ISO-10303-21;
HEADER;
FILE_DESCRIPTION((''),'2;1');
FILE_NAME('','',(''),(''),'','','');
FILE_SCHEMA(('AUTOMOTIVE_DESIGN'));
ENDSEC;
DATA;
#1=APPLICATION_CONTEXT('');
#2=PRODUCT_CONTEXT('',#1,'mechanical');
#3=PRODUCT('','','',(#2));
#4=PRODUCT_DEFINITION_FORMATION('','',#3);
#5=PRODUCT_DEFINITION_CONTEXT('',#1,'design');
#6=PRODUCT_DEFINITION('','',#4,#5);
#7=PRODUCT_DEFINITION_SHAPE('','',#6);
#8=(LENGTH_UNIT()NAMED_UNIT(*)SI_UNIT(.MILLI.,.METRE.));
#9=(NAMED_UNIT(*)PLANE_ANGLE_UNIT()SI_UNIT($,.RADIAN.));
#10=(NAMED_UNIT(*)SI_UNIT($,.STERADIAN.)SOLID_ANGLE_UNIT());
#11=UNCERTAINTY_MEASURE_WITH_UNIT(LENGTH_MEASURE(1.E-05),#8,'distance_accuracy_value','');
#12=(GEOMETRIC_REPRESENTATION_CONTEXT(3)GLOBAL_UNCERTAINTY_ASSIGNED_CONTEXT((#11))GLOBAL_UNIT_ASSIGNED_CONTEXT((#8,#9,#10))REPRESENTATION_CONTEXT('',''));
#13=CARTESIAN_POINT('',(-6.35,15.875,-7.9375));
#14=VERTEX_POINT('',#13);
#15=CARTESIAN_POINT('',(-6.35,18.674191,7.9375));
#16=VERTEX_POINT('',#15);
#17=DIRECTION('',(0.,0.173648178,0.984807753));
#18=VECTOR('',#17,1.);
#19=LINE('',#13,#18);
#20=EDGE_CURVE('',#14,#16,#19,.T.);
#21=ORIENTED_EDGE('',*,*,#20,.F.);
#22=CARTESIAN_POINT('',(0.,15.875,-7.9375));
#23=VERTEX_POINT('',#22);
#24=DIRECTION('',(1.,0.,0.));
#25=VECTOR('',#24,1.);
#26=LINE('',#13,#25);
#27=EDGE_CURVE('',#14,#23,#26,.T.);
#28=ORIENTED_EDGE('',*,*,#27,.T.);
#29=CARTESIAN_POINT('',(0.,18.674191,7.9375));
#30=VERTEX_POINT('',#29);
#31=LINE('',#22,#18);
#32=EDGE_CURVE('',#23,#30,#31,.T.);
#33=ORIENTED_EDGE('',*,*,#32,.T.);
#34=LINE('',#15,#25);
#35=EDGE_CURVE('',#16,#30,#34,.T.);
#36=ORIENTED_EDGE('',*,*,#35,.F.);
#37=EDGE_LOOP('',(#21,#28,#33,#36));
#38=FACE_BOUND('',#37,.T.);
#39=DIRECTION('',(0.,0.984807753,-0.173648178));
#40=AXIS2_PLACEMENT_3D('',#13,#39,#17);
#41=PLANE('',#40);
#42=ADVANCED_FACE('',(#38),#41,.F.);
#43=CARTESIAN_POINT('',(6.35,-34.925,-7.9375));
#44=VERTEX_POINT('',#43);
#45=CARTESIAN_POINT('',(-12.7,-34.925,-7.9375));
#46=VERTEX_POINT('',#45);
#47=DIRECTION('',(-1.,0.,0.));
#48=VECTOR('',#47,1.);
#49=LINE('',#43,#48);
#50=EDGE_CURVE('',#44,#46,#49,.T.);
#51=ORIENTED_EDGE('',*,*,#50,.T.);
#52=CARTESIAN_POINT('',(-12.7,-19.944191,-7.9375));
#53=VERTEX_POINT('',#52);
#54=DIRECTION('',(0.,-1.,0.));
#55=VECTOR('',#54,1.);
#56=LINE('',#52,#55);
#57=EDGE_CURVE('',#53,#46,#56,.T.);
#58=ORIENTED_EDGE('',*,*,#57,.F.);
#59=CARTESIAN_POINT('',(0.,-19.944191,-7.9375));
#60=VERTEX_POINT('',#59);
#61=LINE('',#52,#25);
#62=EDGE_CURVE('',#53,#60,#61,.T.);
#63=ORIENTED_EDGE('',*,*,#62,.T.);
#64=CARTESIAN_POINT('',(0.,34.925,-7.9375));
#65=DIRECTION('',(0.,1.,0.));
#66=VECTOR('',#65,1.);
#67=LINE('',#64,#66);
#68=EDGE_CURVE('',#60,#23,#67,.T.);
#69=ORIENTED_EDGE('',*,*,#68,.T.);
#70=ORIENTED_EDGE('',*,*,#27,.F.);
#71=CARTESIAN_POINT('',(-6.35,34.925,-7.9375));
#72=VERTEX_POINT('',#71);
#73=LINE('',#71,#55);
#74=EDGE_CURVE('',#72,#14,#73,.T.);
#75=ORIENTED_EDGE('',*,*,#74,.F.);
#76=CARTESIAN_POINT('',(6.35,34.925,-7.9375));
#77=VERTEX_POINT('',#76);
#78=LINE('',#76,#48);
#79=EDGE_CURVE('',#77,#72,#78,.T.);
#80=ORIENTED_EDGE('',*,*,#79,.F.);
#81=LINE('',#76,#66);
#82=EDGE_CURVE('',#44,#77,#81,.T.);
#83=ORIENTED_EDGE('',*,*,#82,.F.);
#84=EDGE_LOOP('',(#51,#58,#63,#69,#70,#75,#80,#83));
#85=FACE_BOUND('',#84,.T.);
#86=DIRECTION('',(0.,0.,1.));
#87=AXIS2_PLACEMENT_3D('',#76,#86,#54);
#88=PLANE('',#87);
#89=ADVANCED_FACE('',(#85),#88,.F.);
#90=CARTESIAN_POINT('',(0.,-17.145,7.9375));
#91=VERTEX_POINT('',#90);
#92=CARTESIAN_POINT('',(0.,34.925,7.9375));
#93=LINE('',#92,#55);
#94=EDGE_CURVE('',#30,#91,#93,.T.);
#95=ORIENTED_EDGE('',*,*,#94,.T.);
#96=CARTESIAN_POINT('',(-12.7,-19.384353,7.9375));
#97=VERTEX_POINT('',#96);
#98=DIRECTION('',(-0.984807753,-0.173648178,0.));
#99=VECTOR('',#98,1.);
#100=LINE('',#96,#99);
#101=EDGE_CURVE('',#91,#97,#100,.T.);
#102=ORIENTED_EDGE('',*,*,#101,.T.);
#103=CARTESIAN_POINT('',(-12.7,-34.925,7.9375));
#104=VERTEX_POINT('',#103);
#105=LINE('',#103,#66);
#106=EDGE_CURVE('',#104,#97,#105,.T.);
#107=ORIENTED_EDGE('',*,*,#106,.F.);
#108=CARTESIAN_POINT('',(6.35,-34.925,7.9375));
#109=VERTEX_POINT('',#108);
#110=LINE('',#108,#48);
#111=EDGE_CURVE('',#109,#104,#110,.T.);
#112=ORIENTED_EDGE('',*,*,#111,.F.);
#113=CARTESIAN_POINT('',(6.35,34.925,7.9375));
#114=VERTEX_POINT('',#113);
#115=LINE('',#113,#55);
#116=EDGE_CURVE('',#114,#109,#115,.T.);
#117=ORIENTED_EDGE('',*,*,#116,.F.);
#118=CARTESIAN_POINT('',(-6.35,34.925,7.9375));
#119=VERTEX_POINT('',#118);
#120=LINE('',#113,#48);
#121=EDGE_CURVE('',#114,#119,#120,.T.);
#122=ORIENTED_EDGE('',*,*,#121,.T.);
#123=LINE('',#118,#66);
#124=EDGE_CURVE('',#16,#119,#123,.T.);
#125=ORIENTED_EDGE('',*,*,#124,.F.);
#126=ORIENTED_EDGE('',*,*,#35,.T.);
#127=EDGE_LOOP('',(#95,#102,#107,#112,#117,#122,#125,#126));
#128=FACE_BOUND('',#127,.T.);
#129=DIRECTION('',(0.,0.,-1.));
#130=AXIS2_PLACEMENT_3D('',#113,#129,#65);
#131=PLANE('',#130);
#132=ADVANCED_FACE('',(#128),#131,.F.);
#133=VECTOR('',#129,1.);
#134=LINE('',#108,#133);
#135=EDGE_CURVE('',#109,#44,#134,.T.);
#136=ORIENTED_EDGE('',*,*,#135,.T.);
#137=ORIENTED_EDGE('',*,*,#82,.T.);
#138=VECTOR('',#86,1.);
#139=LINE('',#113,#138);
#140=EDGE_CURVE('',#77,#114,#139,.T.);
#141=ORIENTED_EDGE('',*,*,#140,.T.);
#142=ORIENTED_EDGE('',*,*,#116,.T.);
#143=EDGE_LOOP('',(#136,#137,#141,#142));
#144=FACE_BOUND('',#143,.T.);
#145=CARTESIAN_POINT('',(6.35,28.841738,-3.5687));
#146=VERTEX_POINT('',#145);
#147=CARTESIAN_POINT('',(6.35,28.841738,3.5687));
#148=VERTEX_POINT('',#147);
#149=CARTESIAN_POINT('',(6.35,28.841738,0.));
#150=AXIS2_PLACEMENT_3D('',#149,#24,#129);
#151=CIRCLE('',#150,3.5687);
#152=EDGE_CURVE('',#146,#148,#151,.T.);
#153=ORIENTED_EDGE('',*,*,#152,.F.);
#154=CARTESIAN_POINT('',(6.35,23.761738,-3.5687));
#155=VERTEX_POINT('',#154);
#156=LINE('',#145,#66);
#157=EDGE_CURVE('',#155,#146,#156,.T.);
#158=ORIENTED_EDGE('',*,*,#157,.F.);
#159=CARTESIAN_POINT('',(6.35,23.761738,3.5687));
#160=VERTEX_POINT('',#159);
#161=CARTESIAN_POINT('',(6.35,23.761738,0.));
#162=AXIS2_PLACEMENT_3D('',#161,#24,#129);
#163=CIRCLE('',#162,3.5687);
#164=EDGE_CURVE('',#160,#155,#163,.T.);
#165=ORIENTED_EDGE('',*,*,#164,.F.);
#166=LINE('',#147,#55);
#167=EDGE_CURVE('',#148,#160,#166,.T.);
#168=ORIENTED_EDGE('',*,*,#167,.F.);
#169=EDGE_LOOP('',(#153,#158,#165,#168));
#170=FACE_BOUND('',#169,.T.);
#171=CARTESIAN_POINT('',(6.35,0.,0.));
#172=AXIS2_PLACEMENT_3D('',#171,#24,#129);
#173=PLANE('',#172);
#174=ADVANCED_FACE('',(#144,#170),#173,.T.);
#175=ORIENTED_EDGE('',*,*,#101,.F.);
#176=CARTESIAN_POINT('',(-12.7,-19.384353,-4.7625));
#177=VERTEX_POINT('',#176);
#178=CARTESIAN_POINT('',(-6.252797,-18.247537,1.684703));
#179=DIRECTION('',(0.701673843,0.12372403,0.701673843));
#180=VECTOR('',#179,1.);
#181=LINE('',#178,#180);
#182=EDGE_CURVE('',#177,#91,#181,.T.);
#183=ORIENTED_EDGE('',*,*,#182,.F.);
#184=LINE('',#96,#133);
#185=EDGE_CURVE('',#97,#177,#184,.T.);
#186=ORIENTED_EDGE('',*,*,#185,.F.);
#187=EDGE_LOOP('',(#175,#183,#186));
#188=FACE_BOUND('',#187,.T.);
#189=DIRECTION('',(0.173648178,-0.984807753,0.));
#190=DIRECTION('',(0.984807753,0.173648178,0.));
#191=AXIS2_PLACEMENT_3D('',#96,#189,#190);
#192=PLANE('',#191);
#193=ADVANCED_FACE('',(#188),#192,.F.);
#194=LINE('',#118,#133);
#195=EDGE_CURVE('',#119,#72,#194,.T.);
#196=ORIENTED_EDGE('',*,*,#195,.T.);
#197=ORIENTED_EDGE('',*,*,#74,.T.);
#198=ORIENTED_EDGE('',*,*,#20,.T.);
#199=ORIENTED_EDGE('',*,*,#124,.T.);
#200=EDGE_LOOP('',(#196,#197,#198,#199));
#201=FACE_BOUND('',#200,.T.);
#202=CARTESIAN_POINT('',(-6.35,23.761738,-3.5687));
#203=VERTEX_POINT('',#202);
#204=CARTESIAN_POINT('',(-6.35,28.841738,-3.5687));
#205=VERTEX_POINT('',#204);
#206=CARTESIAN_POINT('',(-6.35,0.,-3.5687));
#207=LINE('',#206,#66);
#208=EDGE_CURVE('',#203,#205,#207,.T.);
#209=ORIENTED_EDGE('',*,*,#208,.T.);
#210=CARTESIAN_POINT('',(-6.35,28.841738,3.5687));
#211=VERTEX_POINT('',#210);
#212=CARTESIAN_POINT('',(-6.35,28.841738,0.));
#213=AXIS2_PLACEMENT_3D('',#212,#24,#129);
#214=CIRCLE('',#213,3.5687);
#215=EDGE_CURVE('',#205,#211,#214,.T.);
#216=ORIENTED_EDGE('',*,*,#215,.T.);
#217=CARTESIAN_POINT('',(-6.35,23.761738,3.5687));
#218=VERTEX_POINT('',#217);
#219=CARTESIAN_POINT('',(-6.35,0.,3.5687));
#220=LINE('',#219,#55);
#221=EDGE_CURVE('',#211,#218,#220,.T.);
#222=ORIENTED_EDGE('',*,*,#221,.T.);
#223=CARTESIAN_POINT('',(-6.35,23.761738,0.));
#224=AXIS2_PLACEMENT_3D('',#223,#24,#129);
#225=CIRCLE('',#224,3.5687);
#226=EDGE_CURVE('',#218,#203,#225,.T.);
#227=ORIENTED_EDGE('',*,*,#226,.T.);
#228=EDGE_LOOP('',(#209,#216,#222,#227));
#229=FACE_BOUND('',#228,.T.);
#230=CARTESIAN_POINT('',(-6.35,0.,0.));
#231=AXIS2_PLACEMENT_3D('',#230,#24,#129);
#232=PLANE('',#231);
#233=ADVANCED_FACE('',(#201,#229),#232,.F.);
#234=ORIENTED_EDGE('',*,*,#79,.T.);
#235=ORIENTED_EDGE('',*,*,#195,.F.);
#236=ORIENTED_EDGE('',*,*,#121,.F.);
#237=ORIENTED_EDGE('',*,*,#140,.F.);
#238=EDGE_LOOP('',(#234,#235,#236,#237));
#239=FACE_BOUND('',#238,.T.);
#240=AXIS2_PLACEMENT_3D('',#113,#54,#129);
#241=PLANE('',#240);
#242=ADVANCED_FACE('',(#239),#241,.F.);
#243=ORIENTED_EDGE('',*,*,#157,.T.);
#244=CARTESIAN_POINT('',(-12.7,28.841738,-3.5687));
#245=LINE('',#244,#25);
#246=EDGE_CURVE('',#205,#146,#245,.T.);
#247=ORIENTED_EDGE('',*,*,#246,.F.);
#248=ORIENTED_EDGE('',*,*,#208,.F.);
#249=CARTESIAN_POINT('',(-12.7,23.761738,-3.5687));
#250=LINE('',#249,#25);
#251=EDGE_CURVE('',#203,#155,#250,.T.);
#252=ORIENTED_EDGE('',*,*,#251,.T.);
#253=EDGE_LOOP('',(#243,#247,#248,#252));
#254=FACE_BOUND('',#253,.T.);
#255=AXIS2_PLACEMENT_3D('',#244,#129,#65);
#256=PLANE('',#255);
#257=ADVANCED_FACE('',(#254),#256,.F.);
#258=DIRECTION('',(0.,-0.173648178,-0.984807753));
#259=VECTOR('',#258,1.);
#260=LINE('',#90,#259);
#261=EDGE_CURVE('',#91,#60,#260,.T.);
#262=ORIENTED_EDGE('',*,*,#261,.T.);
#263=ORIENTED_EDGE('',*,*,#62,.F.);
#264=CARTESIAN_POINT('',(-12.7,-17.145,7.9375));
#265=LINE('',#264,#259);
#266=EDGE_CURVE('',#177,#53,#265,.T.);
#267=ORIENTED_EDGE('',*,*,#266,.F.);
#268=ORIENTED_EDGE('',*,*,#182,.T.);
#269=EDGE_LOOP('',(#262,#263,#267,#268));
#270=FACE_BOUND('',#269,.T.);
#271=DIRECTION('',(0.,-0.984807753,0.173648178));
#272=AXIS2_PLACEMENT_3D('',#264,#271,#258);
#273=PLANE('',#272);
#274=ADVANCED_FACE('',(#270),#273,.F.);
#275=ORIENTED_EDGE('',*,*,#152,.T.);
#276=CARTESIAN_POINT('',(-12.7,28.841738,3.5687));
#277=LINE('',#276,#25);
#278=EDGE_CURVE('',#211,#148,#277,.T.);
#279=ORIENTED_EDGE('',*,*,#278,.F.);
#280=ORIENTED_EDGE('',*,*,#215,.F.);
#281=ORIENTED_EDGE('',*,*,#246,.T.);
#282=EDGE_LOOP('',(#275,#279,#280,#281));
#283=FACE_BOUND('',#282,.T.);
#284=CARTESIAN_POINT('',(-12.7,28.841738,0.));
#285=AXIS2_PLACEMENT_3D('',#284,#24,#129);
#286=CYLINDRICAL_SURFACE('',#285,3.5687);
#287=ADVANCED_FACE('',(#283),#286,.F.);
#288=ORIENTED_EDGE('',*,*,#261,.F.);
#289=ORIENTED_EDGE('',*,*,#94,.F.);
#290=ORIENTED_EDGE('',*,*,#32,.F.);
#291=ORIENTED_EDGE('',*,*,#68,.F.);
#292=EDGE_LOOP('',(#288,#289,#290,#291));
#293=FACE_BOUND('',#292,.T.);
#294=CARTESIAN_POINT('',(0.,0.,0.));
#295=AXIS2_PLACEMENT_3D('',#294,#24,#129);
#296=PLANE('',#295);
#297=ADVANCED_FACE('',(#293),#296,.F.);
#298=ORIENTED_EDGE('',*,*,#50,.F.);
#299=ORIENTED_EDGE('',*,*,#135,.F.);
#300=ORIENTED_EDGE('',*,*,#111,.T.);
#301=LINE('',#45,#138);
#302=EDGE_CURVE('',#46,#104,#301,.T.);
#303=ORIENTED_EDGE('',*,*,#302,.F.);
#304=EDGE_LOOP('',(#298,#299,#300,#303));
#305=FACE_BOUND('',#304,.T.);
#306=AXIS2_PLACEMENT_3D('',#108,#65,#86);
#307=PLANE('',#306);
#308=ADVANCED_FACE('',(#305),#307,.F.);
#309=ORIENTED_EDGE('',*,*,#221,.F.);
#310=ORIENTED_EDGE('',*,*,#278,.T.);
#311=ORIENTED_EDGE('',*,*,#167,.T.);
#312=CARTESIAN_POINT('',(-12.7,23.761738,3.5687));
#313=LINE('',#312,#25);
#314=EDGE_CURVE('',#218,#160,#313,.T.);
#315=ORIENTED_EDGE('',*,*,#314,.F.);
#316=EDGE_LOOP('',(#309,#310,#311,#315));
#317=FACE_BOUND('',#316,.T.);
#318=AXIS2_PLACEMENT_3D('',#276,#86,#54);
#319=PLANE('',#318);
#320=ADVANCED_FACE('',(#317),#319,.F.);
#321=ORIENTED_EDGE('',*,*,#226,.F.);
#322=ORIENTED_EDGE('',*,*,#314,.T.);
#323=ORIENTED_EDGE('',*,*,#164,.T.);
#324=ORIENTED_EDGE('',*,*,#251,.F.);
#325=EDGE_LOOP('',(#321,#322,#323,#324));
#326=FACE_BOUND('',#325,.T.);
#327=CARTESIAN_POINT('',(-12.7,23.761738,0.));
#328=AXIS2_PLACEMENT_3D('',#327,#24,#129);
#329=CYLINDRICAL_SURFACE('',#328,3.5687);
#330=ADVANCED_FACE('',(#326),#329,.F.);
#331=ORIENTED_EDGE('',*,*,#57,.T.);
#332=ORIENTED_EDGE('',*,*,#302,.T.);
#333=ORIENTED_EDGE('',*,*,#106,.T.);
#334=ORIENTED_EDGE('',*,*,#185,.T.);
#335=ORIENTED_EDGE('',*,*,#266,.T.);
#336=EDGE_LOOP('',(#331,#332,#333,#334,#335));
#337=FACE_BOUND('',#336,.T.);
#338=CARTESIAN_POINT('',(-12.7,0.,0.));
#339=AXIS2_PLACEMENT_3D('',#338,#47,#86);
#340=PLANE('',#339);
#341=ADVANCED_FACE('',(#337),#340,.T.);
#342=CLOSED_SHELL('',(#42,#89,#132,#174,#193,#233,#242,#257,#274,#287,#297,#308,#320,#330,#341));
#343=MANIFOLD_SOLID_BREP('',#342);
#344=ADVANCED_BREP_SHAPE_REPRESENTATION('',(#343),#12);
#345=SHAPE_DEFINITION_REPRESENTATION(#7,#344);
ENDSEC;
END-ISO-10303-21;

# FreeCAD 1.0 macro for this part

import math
import FreeCAD as App
import Part
import Sketcher
Q = App.Units.Quantity


def add_polygon(sketch, points):
    """Adds a closed chain of lines whose ends are joined by coincident constraints."""
    first, n = sketch.GeometryCount, len(points)
    for a, b in zip(points, points[1:] + points[:1]):
        sketch.addGeometry(Part.LineSegment(App.Vector(*a, 0), App.Vector(*b, 0)), False)
    for i in range(n):
        sketch.addConstraint(Sketcher.Constraint("Coincident", first + i, 2, first + (i + 1) % n, 1))

doc = App.newDocument("Part")
body = doc.addObject("PartDesign::Body", "Body")

# Sketch on YZ plane
sketch1 = body.newObject("Sketcher::SketchObject", "Sketch")
sketch1.AttachmentSupport = (doc.getObject("YZ_Plane"), [""])
sketch1.MapMode = "FlatFace"
add_polygon(sketch1, [(34.925, 7.9375), (-34.925, 7.9375), (-34.925, -7.9375), (34.925, -7.9375)])  # lines 0-3
sketch1.addConstraint(Sketcher.Constraint("Horizontal", 0))
sketch1.addConstraint(Sketcher.Constraint("Vertical", 1))
sketch1.addConstraint(Sketcher.Constraint("Horizontal", 2))
sketch1.addConstraint(Sketcher.Constraint("Vertical", 3))
sketch1.addConstraint(Sketcher.Constraint("Symmetric", 0, 2, 2, 2, -1, 1))
sketch1.addConstraint(Sketcher.Constraint("DistanceX", 0, 2, 0, 1, Q("2.75 in")))
sketch1.addConstraint(Sketcher.Constraint("DistanceY", 1, 2, 1, 1, Q("0.625 in")))
pad1 = body.newObject("PartDesign::Pad", "Pad")
pad1.Profile = sketch1
pad1.Length = Q("0.25 in")

# Sketch on YZ plane
sketch2 = body.newObject("Sketcher::SketchObject", "Sketch001")
sketch2.AttachmentSupport = (doc.getObject("YZ_Plane"), [""])
sketch2.MapMode = "FlatFace"
add_polygon(sketch2, [(34.925, 7.9375), (34.925, -7.9375), (15.875, -7.9375), (18.674191, 7.9375)])  # lines 0-3
sketch2.addConstraint(Sketcher.Constraint("Vertical", 0))
sketch2.addConstraint(Sketcher.Constraint("Horizontal", 1))
sketch2.addConstraint(Sketcher.Constraint("Horizontal", 3))
sketch2.addConstraint(Sketcher.Constraint("Angle", 2, Q("80 deg")))
sketch2.addConstraint(Sketcher.Constraint("DistanceX", 1, 2, 1, 1, Q("0.75 in")))
sketch2.addConstraint(Sketcher.Constraint("DistanceY", 0, 2, 0, 1, Q("0.625 in")))
sketch2.addConstraint(Sketcher.Constraint("DistanceX", -1, 1, 0, 2, Q("1.375 in")))
sketch2.addConstraint(Sketcher.Constraint("DistanceY", 0, 2, -1, 1, Q("0.3125 in")))
pad2 = body.newObject("PartDesign::Pad", "Pad001")
pad2.Profile = sketch2
pad2.Length = Q("0.25 in")
pad2.Reversed = True

# Sketch on YZ plane
sketch3 = body.newObject("Sketcher::SketchObject", "Sketch002")
sketch3.AttachmentSupport = (doc.getObject("YZ_Plane"), [""])
sketch3.MapMode = "FlatFace"
add_polygon(sketch3, [(-19.944191, -7.9375), (-34.925, -7.9375), (-34.925, 7.9375), (-17.145, 7.9375)])  # lines 0-3
sketch3.addConstraint(Sketcher.Constraint("Horizontal", 0))
sketch3.addConstraint(Sketcher.Constraint("Vertical", 1))
sketch3.addConstraint(Sketcher.Constraint("Horizontal", 2))
sketch3.addConstraint(Sketcher.Constraint("DistanceX", 2, 1, 2, 2, Q("0.7 in")))
sketch3.addConstraint(Sketcher.Constraint("Angle", 3, Q("-100 deg")))
sketch3.addConstraint(Sketcher.Constraint("DistanceY", 1, 1, 1, 2, Q("0.625 in")))
sketch3.addConstraint(Sketcher.Constraint("DistanceX", 0, 2, -1, 1, Q("1.375 in")))
sketch3.addConstraint(Sketcher.Constraint("DistanceY", 0, 2, -1, 1, Q("0.3125 in")))
pad3 = body.newObject("PartDesign::Pad", "Pad002")
pad3.Profile = sketch3
pad3.Length = Q("0.5 in")
pad3.Reversed = True

# Sketch on XY plane
sketch4 = body.newObject("Sketcher::SketchObject", "Sketch003")
sketch4.AttachmentSupport = (doc.getObject("XY_Plane"), [""])
sketch4.MapMode = "FlatFace"
sketch4.AttachmentOffset = App.Placement(App.Vector(0, 0, -0.3125 * 25.4), App.Rotation())
add_polygon(sketch4, [(-12.7, -17.145), (0, -17.145), (-12.7, -19.384353)])  # lines 0-2
sketch4.addConstraint(Sketcher.Constraint("Horizontal", 0))
sketch4.addConstraint(Sketcher.Constraint("Vertical", 2))
sketch4.addConstraint(Sketcher.Constraint("PointOnObject", 0, 2, -2))
sketch4.addConstraint(Sketcher.Constraint("DistanceX", 0, 1, 0, 2, Q("0.5 in")))
sketch4.addConstraint(Sketcher.Constraint("Angle", 1, Q("-170 deg")))
sketch4.addConstraint(Sketcher.Constraint("DistanceY", 0, 2, -1, 1, Q("0.675 in")))
pocket1 = body.newObject("PartDesign::Pocket", "Pocket")
pocket1.Profile = sketch4
pocket1.Type = "ThroughAll"
pocket1.Reversed = True

# Sketch on YZ plane
sketch5 = body.newObject("Sketcher::SketchObject", "Sketch004")
sketch5.AttachmentSupport = (doc.getObject("YZ_Plane"), [""])
sketch5.MapMode = "FlatFace"
sketch5.AttachmentOffset = App.Placement(App.Vector(0, 0, 0.25 * 25.4), App.Rotation())
sketch5.addGeometry(Part.LineSegment(App.Vector(23.761738, -3.5687, 0), App.Vector(28.841738, -3.5687, 0)), False)
sketch5.addGeometry(Part.ArcOfCircle(Part.Circle(App.Vector(28.841738, 0, 0), App.Vector(0, 0, 1), 3.5687), math.radians(-90), math.radians(90)), False)
sketch5.addGeometry(Part.LineSegment(App.Vector(28.841738, 3.5687, 0), App.Vector(23.761738, 3.5687, 0)), False)
sketch5.addGeometry(Part.ArcOfCircle(Part.Circle(App.Vector(23.761738, 0, 0), App.Vector(0, 0, 1), 3.5687), math.radians(90), math.radians(270)), False)
sketch5.addConstraint(Sketcher.Constraint("Tangent", 0, 2, 1, 1))
sketch5.addConstraint(Sketcher.Constraint("Tangent", 1, 2, 2, 1))
sketch5.addConstraint(Sketcher.Constraint("Tangent", 2, 2, 3, 1))
sketch5.addConstraint(Sketcher.Constraint("Tangent", 3, 2, 0, 1))
sketch5.addConstraint(Sketcher.Constraint("Horizontal", 0))
sketch5.addConstraint(Sketcher.Constraint("Horizontal", 2))
sketch5.addConstraint(Sketcher.Constraint("PointOnObject", 1, 3, -1))
sketch5.addConstraint(Sketcher.Constraint("DistanceX", 0, 1, 0, 2, Q("0.2 in")))
sketch5.addConstraint(Sketcher.Constraint("Radius", 1, Q("0.1405 in")))
sketch5.addConstraint(Sketcher.Constraint("DistanceX", -1, 1, 1, 3, Q("28.841738 mm")))
pocket2 = body.newObject("PartDesign::Pocket", "Pocket001")
pocket2.Profile = sketch5
pocket2.Type = "ThroughAll"

doc.recompute()
